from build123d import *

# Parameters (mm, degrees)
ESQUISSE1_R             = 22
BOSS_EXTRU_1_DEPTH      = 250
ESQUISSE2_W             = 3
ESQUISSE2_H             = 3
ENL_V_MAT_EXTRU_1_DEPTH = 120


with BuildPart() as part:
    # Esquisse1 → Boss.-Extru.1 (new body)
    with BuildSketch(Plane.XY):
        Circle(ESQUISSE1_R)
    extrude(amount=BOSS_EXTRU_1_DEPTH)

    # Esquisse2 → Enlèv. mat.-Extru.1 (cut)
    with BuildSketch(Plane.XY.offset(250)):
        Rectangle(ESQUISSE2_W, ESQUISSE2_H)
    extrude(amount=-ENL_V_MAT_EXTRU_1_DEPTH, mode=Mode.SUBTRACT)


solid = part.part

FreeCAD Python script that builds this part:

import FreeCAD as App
import Part
import Sketcher


def add_polygon(sketch, points):
    """Adds a closed chain of lines whose ends are joined by coincident constraints."""
    first, n = sketch.GeometryCount, len(points)
    for a, b in zip(points, points[1:] + points[:1]):
        sketch.addGeometry(Part.LineSegment(App.Vector(*a, 0), App.Vector(*b, 0)), False)
    for i in range(n):
        sketch.addConstraint(Sketcher.Constraint("Coincident", first + i, 2, first + (i + 1) % n, 1))

doc = App.newDocument("Part")
body = doc.addObject("PartDesign::Body", "Body")

# Sketch on XY plane
sketch1 = body.newObject("Sketcher::SketchObject", "Sketch")
sketch1.AttachmentSupport = (doc.getObject("XY_Plane"), [""])
sketch1.MapMode = "FlatFace"
sketch1.addGeometry(Part.Circle(App.Vector(0, 0, 0), App.Vector(0, 0, 1), 22), False)
sketch1.addConstraint(Sketcher.Constraint("Coincident", 0, 3, -1, 1))
sketch1.addConstraint(Sketcher.Constraint("Diameter", 0, 44.0))
pad1 = body.newObject("PartDesign::Pad", "Pad")
pad1.Profile = sketch1
pad1.Length = 250

# Sketch on XY plane
sketch2 = body.newObject("Sketcher::SketchObject", "Sketch001")
sketch2.AttachmentSupport = (doc.getObject("XY_Plane"), [""])
sketch2.MapMode = "FlatFace"
sketch2.AttachmentOffset = App.Placement(App.Vector(0, 0, 250), App.Rotation())
add_polygon(sketch2, [(-1.5, 1.5), (-1.5, -1.5), (1.5, -1.5), (1.5, 1.5)])  # lines 0-3
sketch2.addConstraint(Sketcher.Constraint("Vertical", 0))
sketch2.addConstraint(Sketcher.Constraint("Horizontal", 1))
sketch2.addConstraint(Sketcher.Constraint("Vertical", 2))
sketch2.addConstraint(Sketcher.Constraint("Horizontal", 3))
sketch2.addConstraint(Sketcher.Constraint("Symmetric", 0, 2, 2, 2, -1, 1))
sketch2.addConstraint(Sketcher.Constraint("Equal", 3, 0))
sketch2.addConstraint(Sketcher.Constraint("DistanceX", 1, 1, 1, 2, 3.0))
pocket1 = body.newObject("PartDesign::Pocket", "Pocket")
pocket1.Profile = sketch2
pocket1.Length = 120

doc.recompute()
